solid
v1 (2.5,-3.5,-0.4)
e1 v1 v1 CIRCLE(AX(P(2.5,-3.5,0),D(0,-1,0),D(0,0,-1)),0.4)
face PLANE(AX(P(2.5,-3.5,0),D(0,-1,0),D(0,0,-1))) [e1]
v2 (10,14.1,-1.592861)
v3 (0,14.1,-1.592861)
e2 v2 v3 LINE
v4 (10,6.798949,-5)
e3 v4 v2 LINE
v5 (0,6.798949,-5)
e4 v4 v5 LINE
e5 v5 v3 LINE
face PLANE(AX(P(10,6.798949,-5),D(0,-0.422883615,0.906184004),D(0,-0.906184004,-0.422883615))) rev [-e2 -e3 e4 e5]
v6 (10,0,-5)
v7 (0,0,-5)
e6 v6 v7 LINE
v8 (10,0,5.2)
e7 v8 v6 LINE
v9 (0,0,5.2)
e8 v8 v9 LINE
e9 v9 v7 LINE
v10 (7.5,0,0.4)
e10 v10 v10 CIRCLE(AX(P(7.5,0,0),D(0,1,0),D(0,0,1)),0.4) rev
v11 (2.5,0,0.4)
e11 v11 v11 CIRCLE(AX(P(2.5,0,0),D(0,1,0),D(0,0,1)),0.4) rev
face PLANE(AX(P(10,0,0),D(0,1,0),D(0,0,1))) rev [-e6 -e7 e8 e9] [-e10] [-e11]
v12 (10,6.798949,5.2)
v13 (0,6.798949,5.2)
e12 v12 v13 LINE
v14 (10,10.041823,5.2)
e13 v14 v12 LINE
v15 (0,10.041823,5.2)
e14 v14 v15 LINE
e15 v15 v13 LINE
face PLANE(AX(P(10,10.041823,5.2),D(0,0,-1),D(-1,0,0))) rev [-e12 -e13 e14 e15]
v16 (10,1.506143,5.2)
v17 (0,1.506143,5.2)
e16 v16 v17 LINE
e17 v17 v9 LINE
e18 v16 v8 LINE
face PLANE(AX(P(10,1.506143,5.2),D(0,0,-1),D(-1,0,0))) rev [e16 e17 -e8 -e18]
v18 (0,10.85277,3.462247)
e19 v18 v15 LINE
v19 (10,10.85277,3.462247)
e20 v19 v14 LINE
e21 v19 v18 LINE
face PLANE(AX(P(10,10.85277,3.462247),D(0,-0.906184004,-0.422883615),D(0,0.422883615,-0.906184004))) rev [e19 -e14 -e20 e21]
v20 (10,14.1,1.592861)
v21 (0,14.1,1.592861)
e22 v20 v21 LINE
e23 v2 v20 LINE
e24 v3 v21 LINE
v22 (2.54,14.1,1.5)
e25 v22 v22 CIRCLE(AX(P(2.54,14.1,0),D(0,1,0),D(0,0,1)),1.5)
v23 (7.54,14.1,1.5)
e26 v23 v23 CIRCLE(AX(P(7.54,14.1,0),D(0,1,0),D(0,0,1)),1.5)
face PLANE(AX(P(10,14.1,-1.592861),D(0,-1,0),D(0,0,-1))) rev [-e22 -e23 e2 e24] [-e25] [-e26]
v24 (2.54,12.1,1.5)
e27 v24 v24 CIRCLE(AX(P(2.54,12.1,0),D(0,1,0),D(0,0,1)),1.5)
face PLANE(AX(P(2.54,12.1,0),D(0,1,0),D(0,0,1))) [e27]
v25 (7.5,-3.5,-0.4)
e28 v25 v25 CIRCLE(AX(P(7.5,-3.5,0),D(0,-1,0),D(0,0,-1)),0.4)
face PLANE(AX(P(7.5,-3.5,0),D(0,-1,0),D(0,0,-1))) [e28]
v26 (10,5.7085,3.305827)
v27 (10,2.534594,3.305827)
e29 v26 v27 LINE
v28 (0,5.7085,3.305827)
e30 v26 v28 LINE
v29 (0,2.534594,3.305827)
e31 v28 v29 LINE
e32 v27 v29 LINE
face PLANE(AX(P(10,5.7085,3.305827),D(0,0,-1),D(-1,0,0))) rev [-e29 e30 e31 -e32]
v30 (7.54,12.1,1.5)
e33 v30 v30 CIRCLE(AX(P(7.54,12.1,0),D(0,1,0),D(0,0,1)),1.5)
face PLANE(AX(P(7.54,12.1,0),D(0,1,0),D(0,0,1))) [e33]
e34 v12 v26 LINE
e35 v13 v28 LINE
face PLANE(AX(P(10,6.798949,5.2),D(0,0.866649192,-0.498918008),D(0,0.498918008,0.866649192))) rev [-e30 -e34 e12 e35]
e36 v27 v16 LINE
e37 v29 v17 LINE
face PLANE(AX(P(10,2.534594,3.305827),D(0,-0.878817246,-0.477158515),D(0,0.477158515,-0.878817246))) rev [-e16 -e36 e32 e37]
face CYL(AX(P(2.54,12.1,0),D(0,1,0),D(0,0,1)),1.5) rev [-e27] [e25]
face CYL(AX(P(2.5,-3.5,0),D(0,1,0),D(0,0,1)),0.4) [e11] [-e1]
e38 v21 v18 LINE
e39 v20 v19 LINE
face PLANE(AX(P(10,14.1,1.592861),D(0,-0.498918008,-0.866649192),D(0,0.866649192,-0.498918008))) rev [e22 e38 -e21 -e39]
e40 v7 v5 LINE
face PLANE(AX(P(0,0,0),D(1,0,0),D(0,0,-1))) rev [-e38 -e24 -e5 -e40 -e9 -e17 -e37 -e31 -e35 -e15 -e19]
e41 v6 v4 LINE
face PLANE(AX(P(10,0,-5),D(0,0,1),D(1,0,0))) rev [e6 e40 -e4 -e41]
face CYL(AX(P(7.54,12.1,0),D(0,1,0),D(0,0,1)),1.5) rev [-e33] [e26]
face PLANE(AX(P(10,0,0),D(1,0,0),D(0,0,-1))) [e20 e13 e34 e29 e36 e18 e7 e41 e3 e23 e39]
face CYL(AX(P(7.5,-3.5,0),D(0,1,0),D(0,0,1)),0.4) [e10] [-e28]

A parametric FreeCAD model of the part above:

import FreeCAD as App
import Part
import Sketcher
Q = App.Units.Quantity

doc = App.newDocument("Part")
body = doc.addObject("PartDesign::Body", "Body")

# Sketch on YZ plane
sketch1 = doc.addObject("Sketcher::SketchObject", "Sketch")
body.addObject(sketch1)
sketch1.AttachmentSupport = (doc.YZ_Plane, [""])
sketch1.MapMode = "FlatFace"
sketch1.addGeometry([
    Part.LineSegment(App.Vector(0, -5, 0), App.Vector(6.8, -5, 0)),  # 0
    Part.LineSegment(App.Vector(6.8, -5, 0), App.Vector(14.1, -1.6, 0)),  # 1
    Part.LineSegment(App.Vector(14.1, -1.6, 0), App.Vector(14.1, 1.6, 0)),  # 2
    Part.LineSegment(App.Vector(14.1, 1.6, 0), App.Vector(10.9, 3.5, 0)),  # 3
    Part.LineSegment(App.Vector(10.9, 3.5, 0), App.Vector(10, 5.2, 0)),  # 4
    Part.LineSegment(App.Vector(10, 5.2, 0), App.Vector(6.8, 5.2, 0)),  # 5
    Part.LineSegment(App.Vector(6.8, 5.2, 0), App.Vector(5.7, 3.3, 0)),  # 6
    Part.LineSegment(App.Vector(5.7, 3.3, 0), App.Vector(2.5, 3.3, 0)),  # 7
    Part.LineSegment(App.Vector(2.5, 3.3, 0), App.Vector(1.5, 5.2, 0)),  # 8
    Part.LineSegment(App.Vector(1.5, 5.2, 0), App.Vector(0, 5.2, 0)),  # 9
    Part.LineSegment(App.Vector(0, 5.2, 0), App.Vector(0, -5, 0)),  # 10
], False)
sketch1.addConstraint([
    Sketcher.Constraint("Coincident", 0, 2, 1, 1),
    Sketcher.Constraint("Coincident", 1, 2, 2, 1),
    Sketcher.Constraint("Coincident", 2, 2, 3, 1),
    Sketcher.Constraint("Coincident", 3, 2, 4, 1),
    Sketcher.Constraint("Coincident", 4, 2, 5, 1),
    Sketcher.Constraint("Coincident", 5, 2, 6, 1),
    Sketcher.Constraint("Coincident", 6, 2, 7, 1),
    Sketcher.Constraint("Coincident", 7, 2, 8, 1),
    Sketcher.Constraint("Coincident", 8, 2, 9, 1),
    Sketcher.Constraint("Coincident", 9, 2, 10, 1),
    Sketcher.Constraint("Coincident", 10, 2, 0, 1),
    Sketcher.Constraint("Horizontal", 0),
    Sketcher.Constraint("Vertical", 2),
    Sketcher.Constraint("Horizontal", 5),
    Sketcher.Constraint("Horizontal", 7),
    Sketcher.Constraint("Horizontal", 9),
    Sketcher.Constraint("Vertical", 10),
    Sketcher.Constraint("PointOnObject", 9, 2, -2),
    Sketcher.Constraint("Perpendicular", 1, 4),
    Sketcher.Constraint("Perpendicular", 3, 6),
    Sketcher.Constraint("Horizontal", 5, 2, 8, 2),
    Sketcher.Constraint("Vertical", 0, 2, 5, 2),
    Sketcher.Constraint("DistanceY", 10, 2, 10, 1, 10.2),
    Sketcher.Constraint("DistanceY", 0, 2, -1, 1, 5.0),
    Sketcher.Constraint("Angle", 8, Q("118.499984 deg")),
    Sketcher.Constraint("DistanceX", -1, 1, 1, 2, 14.1),
    Sketcher.Constraint("DistanceX", 0, 1, 0, 2, 6.798949),
    Sketcher.Constraint("DistanceX", -1, 1, 6, 2, 5.7085),
    Sketcher.Constraint("Distance", 1, 8.056918),
    Sketcher.Constraint("Distance", 3, 3.746879),
    Sketcher.Constraint("Distance", 4, 1.917661),
    Sketcher.Constraint("Distance", 6, 2.185628),
    Sketcher.Constraint("DistanceX", 7, 2, 7, 1, 3.173906),
])
pad1 = doc.addObject("PartDesign::Pad", "Pad")
body.addObject(pad1)
pad1.Profile = sketch1
pad1.Length = 10

# Sketch on XZ plane
sketch2 = doc.addObject("Sketcher::SketchObject", "Sketch001")
body.addObject(sketch2)
sketch2.AttachmentSupport = (doc.XZ_Plane, [""])
sketch2.MapMode = "FlatFace"
sketch2.AttachmentOffset = App.Placement(App.Vector(0, 0, -14.1), App.Rotation())
sketch2.addGeometry([
    Part.Circle(App.Vector(2.5, 0, 0), App.Vector(0, 0, 1), 1.5),
    Part.Circle(App.Vector(7.5, 0, 0), App.Vector(0, 0, 1), 1.5),
], False)
sketch2.addConstraint([
    Sketcher.Constraint("Equal", 0, 1),
    Sketcher.Constraint("PointOnObject", 0, 3, -1),
    Sketcher.Constraint("PointOnObject", 1, 3, -1),
    Sketcher.Constraint("Diameter", 0, 3.0),
    Sketcher.Constraint("DistanceX", 0, 3, 1, 3, 5.0),
    Sketcher.Constraint("DistanceX", -1, 1, 0, 3, 2.54),
])
pocket1 = doc.addObject("PartDesign::Pocket", "Pocket")
body.addObject(pocket1)
pocket1.Profile = sketch2
pocket1.Length = 2
pocket1.Reversed = True

# Sketch on XZ plane
sketch3 = doc.addObject("Sketcher::SketchObject", "Sketch002")
body.addObject(sketch3)
sketch3.AttachmentSupport = (doc.XZ_Plane, [""])
sketch3.MapMode = "FlatFace"
sketch3.addGeometry([
    Part.Circle(App.Vector(2.5, 0, 0), App.Vector(0, 0, 1), 0.4),
    Part.Circle(App.Vector(7.5, 0, 0), App.Vector(0, 0, 1), 0.4),
], False)
sketch3.addConstraint([
    Sketcher.Constraint("Equal", 0, 1),
    Sketcher.Constraint("PointOnObject", 0, 3, -1),
    Sketcher.Constraint("PointOnObject", 1, 3, -1),
    Sketcher.Constraint("Diameter", 0, 0.8),
    Sketcher.Constraint("DistanceX", 0, 3, 1, 3, 5.0),
    Sketcher.Constraint("DistanceX", -1, 1, 0, 3, 2.5),
])
pad2 = doc.addObject("PartDesign::Pad", "Pad001")
body.addObject(pad2)
pad2.Profile = sketch3
pad2.Length = 3.5

doc.recompute()
